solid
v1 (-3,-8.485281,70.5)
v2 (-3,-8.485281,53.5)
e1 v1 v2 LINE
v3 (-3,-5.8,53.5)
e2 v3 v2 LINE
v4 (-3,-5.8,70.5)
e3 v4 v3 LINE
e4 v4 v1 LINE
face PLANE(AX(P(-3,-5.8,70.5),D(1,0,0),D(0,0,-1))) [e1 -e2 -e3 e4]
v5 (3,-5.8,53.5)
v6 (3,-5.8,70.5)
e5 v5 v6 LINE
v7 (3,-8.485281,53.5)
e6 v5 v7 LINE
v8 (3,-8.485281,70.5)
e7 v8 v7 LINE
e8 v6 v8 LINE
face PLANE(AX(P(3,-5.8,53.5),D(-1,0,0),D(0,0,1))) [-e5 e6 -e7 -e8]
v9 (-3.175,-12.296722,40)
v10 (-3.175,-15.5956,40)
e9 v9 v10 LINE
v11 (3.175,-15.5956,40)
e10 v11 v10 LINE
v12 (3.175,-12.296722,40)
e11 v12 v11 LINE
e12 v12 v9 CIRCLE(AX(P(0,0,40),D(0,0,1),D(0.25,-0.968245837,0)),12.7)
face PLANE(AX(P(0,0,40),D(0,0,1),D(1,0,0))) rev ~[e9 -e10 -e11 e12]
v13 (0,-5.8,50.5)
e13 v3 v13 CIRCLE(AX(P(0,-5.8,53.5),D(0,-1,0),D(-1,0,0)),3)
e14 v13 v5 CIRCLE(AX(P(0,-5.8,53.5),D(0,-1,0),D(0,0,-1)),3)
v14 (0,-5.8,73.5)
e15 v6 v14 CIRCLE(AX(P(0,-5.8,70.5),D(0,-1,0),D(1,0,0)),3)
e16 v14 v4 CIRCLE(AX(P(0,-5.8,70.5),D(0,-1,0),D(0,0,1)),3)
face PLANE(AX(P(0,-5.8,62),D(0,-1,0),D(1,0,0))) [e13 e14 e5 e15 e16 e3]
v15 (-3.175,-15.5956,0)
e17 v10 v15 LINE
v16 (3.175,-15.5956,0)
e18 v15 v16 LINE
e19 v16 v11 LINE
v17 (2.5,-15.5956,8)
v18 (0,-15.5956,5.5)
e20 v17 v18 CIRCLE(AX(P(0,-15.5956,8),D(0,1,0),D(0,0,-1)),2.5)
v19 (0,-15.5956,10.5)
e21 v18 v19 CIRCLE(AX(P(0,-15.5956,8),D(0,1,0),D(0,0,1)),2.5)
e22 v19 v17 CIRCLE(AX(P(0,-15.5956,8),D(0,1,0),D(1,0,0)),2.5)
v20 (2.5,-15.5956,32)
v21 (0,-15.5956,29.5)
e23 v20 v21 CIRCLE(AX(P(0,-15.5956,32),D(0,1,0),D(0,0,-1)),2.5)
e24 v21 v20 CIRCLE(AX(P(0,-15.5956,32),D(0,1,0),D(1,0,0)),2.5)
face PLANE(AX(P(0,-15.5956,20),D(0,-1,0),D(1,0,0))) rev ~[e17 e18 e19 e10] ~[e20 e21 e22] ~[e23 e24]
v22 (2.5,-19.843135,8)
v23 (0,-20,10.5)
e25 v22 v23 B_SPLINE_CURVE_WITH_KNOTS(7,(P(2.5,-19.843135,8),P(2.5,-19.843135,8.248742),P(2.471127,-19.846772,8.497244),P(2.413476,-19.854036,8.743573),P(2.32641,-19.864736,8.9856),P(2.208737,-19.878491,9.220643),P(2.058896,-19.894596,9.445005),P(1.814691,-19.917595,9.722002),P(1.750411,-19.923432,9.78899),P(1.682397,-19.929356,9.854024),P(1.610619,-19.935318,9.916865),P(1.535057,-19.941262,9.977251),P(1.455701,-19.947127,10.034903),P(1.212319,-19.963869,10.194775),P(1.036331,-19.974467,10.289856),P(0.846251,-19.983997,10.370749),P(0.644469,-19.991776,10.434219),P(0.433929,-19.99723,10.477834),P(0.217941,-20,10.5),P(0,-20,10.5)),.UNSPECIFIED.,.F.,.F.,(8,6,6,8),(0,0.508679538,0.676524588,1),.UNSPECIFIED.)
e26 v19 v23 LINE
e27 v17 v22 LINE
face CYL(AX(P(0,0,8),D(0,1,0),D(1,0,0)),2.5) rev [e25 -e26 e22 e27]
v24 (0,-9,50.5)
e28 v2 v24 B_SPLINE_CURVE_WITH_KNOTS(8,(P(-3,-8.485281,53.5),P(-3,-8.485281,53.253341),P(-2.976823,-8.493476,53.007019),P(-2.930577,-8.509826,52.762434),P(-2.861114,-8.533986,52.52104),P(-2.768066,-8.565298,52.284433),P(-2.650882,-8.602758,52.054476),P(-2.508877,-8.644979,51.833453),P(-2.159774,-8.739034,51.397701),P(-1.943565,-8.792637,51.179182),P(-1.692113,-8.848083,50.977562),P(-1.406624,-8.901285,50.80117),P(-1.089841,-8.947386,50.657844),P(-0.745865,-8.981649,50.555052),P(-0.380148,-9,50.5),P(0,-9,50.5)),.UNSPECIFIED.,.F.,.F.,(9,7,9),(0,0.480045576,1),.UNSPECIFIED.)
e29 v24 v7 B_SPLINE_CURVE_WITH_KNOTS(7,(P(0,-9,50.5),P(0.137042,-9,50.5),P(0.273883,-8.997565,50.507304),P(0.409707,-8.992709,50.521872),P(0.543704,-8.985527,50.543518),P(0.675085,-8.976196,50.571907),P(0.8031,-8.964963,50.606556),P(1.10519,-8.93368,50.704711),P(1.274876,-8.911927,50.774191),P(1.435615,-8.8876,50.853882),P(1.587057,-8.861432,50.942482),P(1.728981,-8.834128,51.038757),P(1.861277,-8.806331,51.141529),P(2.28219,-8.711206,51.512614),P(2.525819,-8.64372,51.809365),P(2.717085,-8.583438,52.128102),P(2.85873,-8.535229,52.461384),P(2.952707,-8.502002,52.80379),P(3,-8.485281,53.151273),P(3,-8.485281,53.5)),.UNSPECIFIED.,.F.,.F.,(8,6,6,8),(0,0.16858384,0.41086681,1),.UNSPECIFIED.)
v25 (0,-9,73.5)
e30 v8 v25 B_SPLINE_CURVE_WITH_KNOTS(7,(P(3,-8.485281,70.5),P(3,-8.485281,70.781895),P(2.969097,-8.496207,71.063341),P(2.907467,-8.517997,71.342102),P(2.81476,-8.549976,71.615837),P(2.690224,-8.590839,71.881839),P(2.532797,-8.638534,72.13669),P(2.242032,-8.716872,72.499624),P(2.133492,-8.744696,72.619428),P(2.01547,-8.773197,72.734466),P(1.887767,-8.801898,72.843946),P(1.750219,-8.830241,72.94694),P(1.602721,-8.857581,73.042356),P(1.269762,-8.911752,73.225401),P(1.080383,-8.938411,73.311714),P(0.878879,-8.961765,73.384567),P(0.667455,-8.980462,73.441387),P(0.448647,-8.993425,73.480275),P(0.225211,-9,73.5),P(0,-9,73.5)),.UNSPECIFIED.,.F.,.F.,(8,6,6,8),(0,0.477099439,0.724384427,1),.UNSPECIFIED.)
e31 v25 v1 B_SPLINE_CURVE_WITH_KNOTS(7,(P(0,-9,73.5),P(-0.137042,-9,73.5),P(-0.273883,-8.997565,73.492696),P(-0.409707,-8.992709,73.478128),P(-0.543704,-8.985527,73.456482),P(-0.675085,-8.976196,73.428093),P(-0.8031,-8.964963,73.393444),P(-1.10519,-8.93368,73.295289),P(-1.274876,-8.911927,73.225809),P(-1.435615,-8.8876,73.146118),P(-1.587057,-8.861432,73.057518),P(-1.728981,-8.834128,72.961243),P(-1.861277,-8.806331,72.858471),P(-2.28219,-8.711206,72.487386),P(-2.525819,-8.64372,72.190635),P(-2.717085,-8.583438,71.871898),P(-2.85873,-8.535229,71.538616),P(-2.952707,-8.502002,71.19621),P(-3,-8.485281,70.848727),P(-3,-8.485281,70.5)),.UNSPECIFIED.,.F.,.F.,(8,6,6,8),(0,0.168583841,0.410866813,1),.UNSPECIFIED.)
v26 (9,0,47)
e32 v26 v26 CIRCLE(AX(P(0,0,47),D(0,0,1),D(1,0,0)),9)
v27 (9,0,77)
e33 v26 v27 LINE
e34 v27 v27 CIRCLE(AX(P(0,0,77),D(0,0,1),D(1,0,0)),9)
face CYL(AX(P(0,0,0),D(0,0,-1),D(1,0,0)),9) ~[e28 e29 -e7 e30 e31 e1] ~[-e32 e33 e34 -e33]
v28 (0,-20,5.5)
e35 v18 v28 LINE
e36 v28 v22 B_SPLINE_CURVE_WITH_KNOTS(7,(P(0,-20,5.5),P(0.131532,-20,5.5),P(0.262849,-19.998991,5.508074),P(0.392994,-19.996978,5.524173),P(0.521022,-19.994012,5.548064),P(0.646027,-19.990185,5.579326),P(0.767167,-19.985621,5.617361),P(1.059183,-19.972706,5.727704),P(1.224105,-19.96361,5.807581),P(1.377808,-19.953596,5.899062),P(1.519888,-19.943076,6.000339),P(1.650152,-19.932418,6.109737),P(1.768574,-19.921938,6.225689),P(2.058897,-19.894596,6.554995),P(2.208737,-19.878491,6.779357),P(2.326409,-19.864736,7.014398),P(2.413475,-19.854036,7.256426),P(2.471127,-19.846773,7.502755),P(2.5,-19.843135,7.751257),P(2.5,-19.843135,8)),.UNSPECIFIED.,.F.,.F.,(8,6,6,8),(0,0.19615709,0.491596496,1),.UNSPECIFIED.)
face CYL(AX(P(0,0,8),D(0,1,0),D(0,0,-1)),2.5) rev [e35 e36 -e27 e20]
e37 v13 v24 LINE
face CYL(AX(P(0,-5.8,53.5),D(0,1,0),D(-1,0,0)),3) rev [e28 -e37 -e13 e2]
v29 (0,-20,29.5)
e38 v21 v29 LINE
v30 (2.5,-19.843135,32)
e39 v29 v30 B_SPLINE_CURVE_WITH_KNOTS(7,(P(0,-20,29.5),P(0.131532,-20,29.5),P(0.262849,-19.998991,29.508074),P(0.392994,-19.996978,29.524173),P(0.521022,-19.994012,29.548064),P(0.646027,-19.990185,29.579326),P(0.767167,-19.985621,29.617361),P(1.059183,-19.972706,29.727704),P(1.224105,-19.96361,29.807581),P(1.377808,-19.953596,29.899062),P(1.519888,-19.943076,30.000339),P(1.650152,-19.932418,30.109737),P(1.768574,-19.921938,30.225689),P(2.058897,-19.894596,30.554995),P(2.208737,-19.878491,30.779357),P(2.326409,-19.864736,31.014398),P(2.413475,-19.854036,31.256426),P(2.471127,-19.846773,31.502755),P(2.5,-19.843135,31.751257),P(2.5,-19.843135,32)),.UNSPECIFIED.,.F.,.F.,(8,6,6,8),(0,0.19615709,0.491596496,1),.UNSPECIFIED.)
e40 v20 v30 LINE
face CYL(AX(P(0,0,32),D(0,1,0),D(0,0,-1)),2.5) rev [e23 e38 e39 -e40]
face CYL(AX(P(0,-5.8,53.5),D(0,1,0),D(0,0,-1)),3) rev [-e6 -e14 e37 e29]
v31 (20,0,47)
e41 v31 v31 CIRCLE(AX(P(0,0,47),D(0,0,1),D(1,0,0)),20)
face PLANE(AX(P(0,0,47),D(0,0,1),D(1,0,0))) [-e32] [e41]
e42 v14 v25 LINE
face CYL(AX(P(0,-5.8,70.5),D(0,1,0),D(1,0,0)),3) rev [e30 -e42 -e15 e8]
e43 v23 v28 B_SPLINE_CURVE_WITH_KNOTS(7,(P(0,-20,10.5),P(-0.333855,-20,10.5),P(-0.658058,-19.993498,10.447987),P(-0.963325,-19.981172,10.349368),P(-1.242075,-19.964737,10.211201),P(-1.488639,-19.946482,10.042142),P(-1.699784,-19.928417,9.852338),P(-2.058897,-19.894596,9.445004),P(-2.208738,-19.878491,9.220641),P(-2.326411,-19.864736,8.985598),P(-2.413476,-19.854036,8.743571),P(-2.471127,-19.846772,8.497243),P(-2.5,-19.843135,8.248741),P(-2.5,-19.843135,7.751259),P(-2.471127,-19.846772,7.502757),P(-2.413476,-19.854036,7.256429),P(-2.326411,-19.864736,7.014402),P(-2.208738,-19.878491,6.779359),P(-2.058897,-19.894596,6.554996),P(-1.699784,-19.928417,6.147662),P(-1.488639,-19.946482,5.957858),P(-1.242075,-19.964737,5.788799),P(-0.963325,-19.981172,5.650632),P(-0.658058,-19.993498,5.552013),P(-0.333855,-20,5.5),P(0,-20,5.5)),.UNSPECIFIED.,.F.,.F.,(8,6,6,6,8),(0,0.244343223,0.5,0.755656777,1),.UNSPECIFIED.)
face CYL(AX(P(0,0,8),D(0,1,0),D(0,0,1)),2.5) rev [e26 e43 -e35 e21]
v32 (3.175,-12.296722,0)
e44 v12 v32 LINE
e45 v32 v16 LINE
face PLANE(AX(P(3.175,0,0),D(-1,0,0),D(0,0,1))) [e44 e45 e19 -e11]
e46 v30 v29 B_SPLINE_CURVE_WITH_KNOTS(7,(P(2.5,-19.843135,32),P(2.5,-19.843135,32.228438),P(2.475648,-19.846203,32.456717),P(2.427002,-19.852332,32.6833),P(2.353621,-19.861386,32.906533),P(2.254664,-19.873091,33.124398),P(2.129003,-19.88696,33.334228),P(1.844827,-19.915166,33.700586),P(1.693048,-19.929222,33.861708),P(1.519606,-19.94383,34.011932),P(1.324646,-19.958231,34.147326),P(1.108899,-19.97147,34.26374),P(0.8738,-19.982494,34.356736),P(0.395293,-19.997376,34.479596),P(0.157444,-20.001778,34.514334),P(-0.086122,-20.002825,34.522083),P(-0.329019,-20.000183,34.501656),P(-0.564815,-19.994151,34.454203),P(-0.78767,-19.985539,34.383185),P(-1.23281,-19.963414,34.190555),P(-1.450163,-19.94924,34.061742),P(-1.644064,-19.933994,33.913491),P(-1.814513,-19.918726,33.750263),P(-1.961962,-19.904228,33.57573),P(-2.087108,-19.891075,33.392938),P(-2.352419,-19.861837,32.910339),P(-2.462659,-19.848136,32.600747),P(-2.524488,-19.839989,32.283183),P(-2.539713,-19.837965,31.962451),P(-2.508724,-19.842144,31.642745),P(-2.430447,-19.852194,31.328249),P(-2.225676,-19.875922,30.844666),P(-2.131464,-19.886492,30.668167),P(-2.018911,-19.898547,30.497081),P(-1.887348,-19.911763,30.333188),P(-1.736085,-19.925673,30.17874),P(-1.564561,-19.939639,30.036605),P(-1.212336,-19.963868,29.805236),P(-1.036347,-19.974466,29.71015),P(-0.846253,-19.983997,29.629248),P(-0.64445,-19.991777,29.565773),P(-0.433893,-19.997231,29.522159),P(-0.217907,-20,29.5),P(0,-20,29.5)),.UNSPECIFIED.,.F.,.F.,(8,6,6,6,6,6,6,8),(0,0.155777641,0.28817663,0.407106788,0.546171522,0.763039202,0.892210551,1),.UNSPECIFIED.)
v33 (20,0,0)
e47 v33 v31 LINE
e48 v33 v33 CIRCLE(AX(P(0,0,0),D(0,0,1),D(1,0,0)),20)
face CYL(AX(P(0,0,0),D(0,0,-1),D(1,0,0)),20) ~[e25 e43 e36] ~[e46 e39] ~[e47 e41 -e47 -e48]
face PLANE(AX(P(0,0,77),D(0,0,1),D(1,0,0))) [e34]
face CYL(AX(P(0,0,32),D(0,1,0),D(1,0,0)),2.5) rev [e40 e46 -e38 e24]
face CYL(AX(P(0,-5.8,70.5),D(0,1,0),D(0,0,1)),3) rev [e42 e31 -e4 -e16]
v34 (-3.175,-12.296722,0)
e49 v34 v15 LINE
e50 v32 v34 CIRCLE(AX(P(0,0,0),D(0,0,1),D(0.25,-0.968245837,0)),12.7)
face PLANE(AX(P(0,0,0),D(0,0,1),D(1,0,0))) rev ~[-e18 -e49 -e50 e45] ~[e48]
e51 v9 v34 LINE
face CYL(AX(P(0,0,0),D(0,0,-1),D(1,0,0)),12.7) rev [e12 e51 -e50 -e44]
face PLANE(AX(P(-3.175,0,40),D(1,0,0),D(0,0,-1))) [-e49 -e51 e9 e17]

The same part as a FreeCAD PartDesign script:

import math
import FreeCAD as App
import Part
import Sketcher
from FreeCAD import Vector


def add_polygon(sketch, points):
    """Adds a closed chain of lines whose ends are joined by coincident constraints."""
    first, n = sketch.GeometryCount, len(points)
    for a, b in zip(points, points[1:] + points[:1]):
        sketch.addGeometry(Part.LineSegment(App.Vector(*a, 0), App.Vector(*b, 0)), False)
    for i in range(n):
        sketch.addConstraint(Sketcher.Constraint("Coincident", first + i, 2, first + (i + 1) % n, 1))

doc = App.newDocument("Part")
body = doc.addObject("PartDesign::Body", "Body")

sketch1 = body.newObject("Sketcher::SketchObject", "Sketch")
sketch1.AttachmentSupport = (doc.getObject("XY_Plane"), [""])
sketch1.MapMode = "FlatFace"
sketch1.addGeometry(Part.Circle(Vector(0, 0, 0), Vector(0, 0, 1), 20), False)
sketch1.addGeometry(Part.Circle(Vector(0, 0, 0), Vector(0, 0, 1), 9), False)
sketch1.addConstraint(Sketcher.Constraint("Coincident", 0, 3, -1, 1))
sketch1.addConstraint(Sketcher.Constraint("Coincident", 1, 3, -1, 1))
sketch1.addConstraint(Sketcher.Constraint("Diameter", 0, 40.0))
sketch1.addConstraint(Sketcher.Constraint("Diameter", 1, 18.0))
pad1 = body.newObject("PartDesign::Pad", "Pad")
pad1.Profile = sketch1
pad1.Length = 47

sketch2 = body.newObject("Sketcher::SketchObject", "Sketch001")
sketch2.AttachmentSupport = (doc.getObject("XY_Plane"), [""])
sketch2.MapMode = "FlatFace"
sketch2.addGeometry(Part.Circle(Vector(0, 0, 0), Vector(0, 0, 1), 9), False)
sketch2.addConstraint(Sketcher.Constraint("Coincident", 0, 3, -1, 1))
sketch2.addConstraint(Sketcher.Constraint("Diameter", 0, 18.0))
pad2 = body.newObject("PartDesign::Pad", "Pad001")
pad2.Profile = sketch2
pad2.Length = 77

sketch3 = body.newObject("Sketcher::SketchObject", "Sketch002")
sketch3.AttachmentSupport = (doc.getObject("XY_Plane"), [""])
sketch3.MapMode = "FlatFace"
sketch3.addGeometry(Part.Circle(Vector(0, 0, 0), Vector(0, 0, 1), 13), False)
sketch3.addConstraint(Sketcher.Constraint("Coincident", 0, 3, -1, 1))
sketch3.addConstraint(Sketcher.Constraint("Diameter", 0, 25.4))
pocket1 = body.newObject("PartDesign::Pocket", "Pocket")
pocket1.Profile = sketch3
pocket1.Length = 40
pocket1.Reversed = True

sketch4 = body.newObject("Sketcher::SketchObject", "Sketch003")
sketch4.AttachmentSupport = (doc.getObject("XZ_Plane"), [""])
sketch4.MapMode = "FlatFace"
add_polygon(sketch4, [(-3, 0), (3, 0), (3, 40), (-3, 40)])
sketch4.addConstraint(Sketcher.Constraint("Horizontal", 0))
sketch4.addConstraint(Sketcher.Constraint("Vertical", 1))
sketch4.addConstraint(Sketcher.Constraint("Horizontal", 2))
sketch4.addConstraint(Sketcher.Constraint("Vertical", 3))
sketch4.addConstraint(Sketcher.Constraint("Symmetric", 0, 2, 3, 2, -1, 1))
sketch4.addConstraint(Sketcher.Constraint("DistanceY", 1, 1, 1, 2, 40.0))
sketch4.addConstraint(Sketcher.Constraint("DistanceX", 0, 1, 0, 2, 6.35))
pocket2 = body.newObject("PartDesign::Pocket", "Pocket001")
pocket2.Profile = sketch4
pocket2.Length = 15.5956
pocket2.Reversed = True

sketch5 = body.newObject("Sketcher::SketchObject", "Sketch004")
sketch5.AttachmentSupport = (doc.getObject("XZ_Plane"), [""])
sketch5.MapMode = "FlatFace"
sketch5.AttachmentOffset = App.Placement(Vector(0, 0, 5.8), App.Rotation())
sketch5.addGeometry(Part.LineSegment(Vector(3, 53.5, 0), Vector(3, 70.5, 0)), False)
sketch5.addGeometry(Part.ArcOfCircle(Part.Circle(Vector(0, 70.5, 0), Vector(0, 0, 1), 3), math.radians(0), math.radians(90)), False)
sketch5.addGeometry(Part.ArcOfCircle(Part.Circle(Vector(0, 70.5, 0), Vector(0, 0, 1), 3), math.radians(90), math.radians(180)), False)
sketch5.addGeometry(Part.LineSegment(Vector(-3, 70.5, 0), Vector(-3, 53.5, 0)), False)
sketch5.addGeometry(Part.ArcOfCircle(Part.Circle(Vector(0, 53.5, 0), Vector(0, 0, 1), 3), math.radians(180), math.radians(270)), False)
sketch5.addGeometry(Part.ArcOfCircle(Part.Circle(Vector(0, 53.5, 0), Vector(0, 0, 1), 3), math.radians(-90), math.radians(0)), False)
sketch5.addConstraint(Sketcher.Constraint("Tangent", 0, 2, 1, 1))
sketch5.addConstraint(Sketcher.Constraint("Tangent", 1, 2, 2, 1))
sketch5.addConstraint(Sketcher.Constraint("Tangent", 2, 2, 3, 1))
sketch5.addConstraint(Sketcher.Constraint("Tangent", 3, 2, 4, 1))
sketch5.addConstraint(Sketcher.Constraint("Tangent", 4, 2, 5, 1))
sketch5.addConstraint(Sketcher.Constraint("Tangent", 5, 2, 0, 1))
sketch5.addConstraint(Sketcher.Constraint("Vertical", 0))
sketch5.addConstraint(Sketcher.Constraint("Vertical", 3))
sketch5.addConstraint(Sketcher.Constraint("Equal", 1, 2))
sketch5.addConstraint(Sketcher.Constraint("Equal", 2, 4))
sketch5.addConstraint(Sketcher.Constraint("PointOnObject", 1, 3, -2))
sketch5.addConstraint(Sketcher.Constraint("PointOnObject", 1, 2, -2))
sketch5.addConstraint(Sketcher.Constraint("PointOnObject", 4, 2, -2))
sketch5.addConstraint(Sketcher.Constraint("Radius", 1, 3.0))
sketch5.addConstraint(Sketcher.Constraint("DistanceY", 0, 1, 0, 2, 17.0))
sketch5.addConstraint(Sketcher.Constraint("DistanceY", -1, 1, 1, 3, 70.5))
pocket3 = body.newObject("PartDesign::Pocket", "Pocket002")
pocket3.Profile = sketch5
pocket3.Length = 3.2
pocket3.Reversed = True

sketch6 = body.newObject("Sketcher::SketchObject", "Sketch005")
sketch6.AttachmentSupport = (doc.getObject("XZ_Plane"), [""])
sketch6.MapMode = "FlatFace"
sketch6.addGeometry(Part.ArcOfCircle(Part.Circle(Vector(0, 8, 0), Vector(0, 0, 1), 2.5), math.radians(-90), math.radians(0)), False)
sketch6.addGeometry(Part.ArcOfCircle(Part.Circle(Vector(0, 8, 0), Vector(0, 0, 1), 2.5), math.radians(0), math.radians(90)), False)
sketch6.addGeometry(Part.ArcOfCircle(Part.Circle(Vector(0, 8, 0), Vector(0, 0, 1), 2.5), math.radians(90), math.radians(270)), False)
sketch6.addGeometry(Part.ArcOfCircle(Part.Circle(Vector(0, 32, 0), Vector(0, 0, 1), 2.5), math.radians(0), math.radians(270)), False)
sketch6.addGeometry(Part.ArcOfCircle(Part.Circle(Vector(0, 32, 0), Vector(0, 0, 1), 2.5), math.radians(-90), math.radians(0)), False)
sketch6.addConstraint(Sketcher.Constraint("Tangent", 0, 2, 1, 1))
sketch6.addConstraint(Sketcher.Constraint("Tangent", 1, 2, 2, 1))
sketch6.addConstraint(Sketcher.Constraint("Tangent", 2, 2, 0, 1))
sketch6.addConstraint(Sketcher.Constraint("Tangent", 3, 1, 4, 2))
sketch6.addConstraint(Sketcher.Constraint("Coincident", 4, 1, 3, 2))
sketch6.addConstraint(Sketcher.Constraint("Equal", 2, 3))
sketch6.addConstraint(Sketcher.Constraint("PointOnObject", 0, 3, -2))
sketch6.addConstraint(Sketcher.Constraint("PointOnObject", 3, 3, -2))
sketch6.addConstraint(Sketcher.Constraint("PointOnObject", 1, 2, -2))
sketch6.addConstraint(Sketcher.Constraint("PointOnObject", 2, 2, -2))
sketch6.addConstraint(Sketcher.Constraint("PointOnObject", 4, 1, -2))
sketch6.addConstraint(Sketcher.Constraint("Horizontal", 2, 3, 0, 2))
sketch6.addConstraint(Sketcher.Constraint("Horizontal", 4, 3, 3, 1))
sketch6.addConstraint(Sketcher.Constraint("Radius", 0, 2.5))
sketch6.addConstraint(Sketcher.Constraint("DistanceY", -1, 1, 0, 3, 8.0))
sketch6.addConstraint(Sketcher.Constraint("DistanceY", -1, 1, 3, 3, 32.0))
pocket4 = body.newObject("PartDesign::Pocket", "Pocket003")
pocket4.Profile = sketch6
pocket4.Type = "TwoLengths"
pocket4.Length = 0.8
pocket4.Length2 = 25

doc.recompute()
